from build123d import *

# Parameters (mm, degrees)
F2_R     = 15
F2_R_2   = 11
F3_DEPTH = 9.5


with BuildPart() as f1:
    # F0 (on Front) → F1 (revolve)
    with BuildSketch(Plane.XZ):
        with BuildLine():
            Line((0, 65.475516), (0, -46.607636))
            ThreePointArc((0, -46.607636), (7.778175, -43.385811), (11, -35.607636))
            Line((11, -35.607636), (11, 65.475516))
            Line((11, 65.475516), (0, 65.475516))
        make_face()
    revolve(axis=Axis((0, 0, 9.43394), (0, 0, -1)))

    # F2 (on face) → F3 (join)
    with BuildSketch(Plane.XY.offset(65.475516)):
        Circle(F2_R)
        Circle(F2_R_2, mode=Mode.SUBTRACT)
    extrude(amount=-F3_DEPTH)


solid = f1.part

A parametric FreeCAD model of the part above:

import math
import FreeCAD as App
import Part
import Sketcher

doc = App.newDocument("Part")
body = doc.addObject("PartDesign::Body", "Body")

# Sketch on XZ plane
sketch1 = body.newObject("Sketcher::SketchObject", "Sketch")
sketch1.AttachmentSupport = (doc.getObject("XZ_Plane"), [""])
sketch1.MapMode = "FlatFace"
sketch1.addGeometry([
    Part.LineSegment(App.Vector(0, 65, 0), App.Vector(0, -47, 0)),
    Part.ArcOfCircle(Part.Circle(App.Vector(0, -36, 0), App.Vector(0, 0, 1), 11), math.radians(-90), math.radians(0)),
    Part.LineSegment(App.Vector(11, -36, 0), App.Vector(11, 65, 0)),
    Part.LineSegment(App.Vector(11, 65, 0), App.Vector(0, 65, 0)),
], False)
sketch1.addConstraint([
    Sketcher.Constraint("Coincident", 0, 2, 1, 1),
    Sketcher.Constraint("Tangent", 1, 2, 2, 1),
    Sketcher.Constraint("Coincident", 2, 2, 3, 1),
    Sketcher.Constraint("Coincident", 3, 2, 0, 1),
    Sketcher.Constraint("Vertical", 0),
    Sketcher.Constraint("Vertical", 2),
    Sketcher.Constraint("Horizontal", 3),
    Sketcher.Constraint("PointOnObject", 1, 3, -2),
    Sketcher.Constraint("PointOnObject", 0, 2, -2),
    Sketcher.Constraint("Radius", 1, 10.999999),
    Sketcher.Constraint("DistanceY", 0, 2, 0, 1, 112.083152),
    Sketcher.Constraint("DistanceY", 1, 3, -1, 1, 35.607637),
])
revolution = body.newObject("PartDesign::Revolution", "Revolution")
revolution.Profile = sketch1
revolution.ReferenceAxis = (sketch1, ["V_Axis"])
revolution.Angle = 360

# Sketch on XY plane
sketch2 = body.newObject("Sketcher::SketchObject", "Sketch001")
sketch2.AttachmentSupport = (doc.getObject("XY_Plane"), [""])
sketch2.MapMode = "FlatFace"
sketch2.AttachmentOffset = App.Placement(App.Vector(0, 0, 65.475516), App.Rotation())
sketch2.addGeometry([
    Part.Circle(App.Vector(0, 0, 0), App.Vector(0, 0, 1), 15),
    Part.Circle(App.Vector(0, 0, 0), App.Vector(0, 0, 1), 11),
], False)
sketch2.addConstraint([
    Sketcher.Constraint("Coincident", 0, 3, -1, 1),
    Sketcher.Constraint("Coincident", 1, 3, -1, 1),
    Sketcher.Constraint("Diameter", 0, 30.0),
    Sketcher.Constraint("Diameter", 1, 22.0),
])
pad1 = body.newObject("PartDesign::Pad", "Pad")
pad1.Profile = sketch2
pad1.Length = 9.5
pad1.Reversed = True

doc.recompute()
